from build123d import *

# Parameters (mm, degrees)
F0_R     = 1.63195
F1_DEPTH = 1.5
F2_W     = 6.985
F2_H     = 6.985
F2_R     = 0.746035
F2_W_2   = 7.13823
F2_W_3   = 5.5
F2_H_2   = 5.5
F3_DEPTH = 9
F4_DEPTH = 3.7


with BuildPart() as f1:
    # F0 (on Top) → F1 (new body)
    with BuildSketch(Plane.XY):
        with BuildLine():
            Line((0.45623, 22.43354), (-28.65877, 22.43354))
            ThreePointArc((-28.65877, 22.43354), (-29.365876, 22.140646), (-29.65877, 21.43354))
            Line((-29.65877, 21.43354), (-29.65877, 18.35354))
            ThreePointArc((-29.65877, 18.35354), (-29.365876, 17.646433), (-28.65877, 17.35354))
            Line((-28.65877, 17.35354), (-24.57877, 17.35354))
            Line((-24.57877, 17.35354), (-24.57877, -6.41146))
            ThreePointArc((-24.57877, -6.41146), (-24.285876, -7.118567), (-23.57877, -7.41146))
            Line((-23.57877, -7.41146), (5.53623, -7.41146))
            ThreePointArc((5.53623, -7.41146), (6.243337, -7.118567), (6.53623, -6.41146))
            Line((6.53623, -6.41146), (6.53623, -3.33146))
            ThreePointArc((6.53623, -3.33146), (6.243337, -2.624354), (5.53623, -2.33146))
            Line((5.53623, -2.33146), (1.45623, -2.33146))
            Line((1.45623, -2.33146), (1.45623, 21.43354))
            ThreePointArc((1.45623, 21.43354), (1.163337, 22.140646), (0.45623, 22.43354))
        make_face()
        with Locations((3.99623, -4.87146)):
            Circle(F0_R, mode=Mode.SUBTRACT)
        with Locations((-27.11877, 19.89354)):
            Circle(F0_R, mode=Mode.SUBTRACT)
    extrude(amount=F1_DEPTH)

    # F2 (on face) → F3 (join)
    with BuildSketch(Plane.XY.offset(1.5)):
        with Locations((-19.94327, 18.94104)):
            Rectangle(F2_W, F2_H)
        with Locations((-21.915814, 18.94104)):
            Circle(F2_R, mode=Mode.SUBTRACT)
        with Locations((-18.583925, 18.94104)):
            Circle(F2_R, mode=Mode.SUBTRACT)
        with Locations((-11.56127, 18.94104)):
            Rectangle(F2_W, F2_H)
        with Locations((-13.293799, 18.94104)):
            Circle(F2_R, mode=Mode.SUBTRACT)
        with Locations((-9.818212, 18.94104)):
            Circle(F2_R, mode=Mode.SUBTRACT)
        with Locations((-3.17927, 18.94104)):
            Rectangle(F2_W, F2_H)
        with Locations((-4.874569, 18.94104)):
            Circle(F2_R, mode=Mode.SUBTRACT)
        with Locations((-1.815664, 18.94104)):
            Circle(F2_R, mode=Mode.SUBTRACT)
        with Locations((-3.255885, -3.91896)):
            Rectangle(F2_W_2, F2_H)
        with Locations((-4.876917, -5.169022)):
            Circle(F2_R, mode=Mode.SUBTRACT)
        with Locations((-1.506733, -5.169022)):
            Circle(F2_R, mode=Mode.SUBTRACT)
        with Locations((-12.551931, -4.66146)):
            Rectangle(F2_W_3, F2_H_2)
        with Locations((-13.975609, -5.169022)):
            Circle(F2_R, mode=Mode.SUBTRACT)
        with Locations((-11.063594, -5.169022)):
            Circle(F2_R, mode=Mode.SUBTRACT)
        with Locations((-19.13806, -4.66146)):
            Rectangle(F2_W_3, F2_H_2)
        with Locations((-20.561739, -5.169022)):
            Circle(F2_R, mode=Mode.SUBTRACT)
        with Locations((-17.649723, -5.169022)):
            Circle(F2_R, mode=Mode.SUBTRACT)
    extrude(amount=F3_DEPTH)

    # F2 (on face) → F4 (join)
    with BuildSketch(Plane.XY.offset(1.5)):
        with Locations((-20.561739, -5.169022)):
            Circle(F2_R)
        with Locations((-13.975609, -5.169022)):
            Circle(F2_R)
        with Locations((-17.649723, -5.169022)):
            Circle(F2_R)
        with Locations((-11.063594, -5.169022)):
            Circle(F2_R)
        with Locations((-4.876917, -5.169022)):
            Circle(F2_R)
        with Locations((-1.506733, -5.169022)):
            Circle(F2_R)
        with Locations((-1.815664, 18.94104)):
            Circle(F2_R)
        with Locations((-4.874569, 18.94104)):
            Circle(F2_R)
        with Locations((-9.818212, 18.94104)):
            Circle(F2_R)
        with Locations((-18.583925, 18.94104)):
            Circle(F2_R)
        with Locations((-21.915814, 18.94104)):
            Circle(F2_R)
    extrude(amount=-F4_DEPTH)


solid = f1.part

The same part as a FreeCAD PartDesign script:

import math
import FreeCAD as App
import Part
import Sketcher

V = App.Vector
Q = App.Units.Quantity


def add_polygon(sketch, points):
    """Adds a closed chain of lines whose ends are joined by coincident constraints."""
    first, n = sketch.GeometryCount, len(points)
    for a, b in zip(points, points[1:] + points[:1]):
        sketch.addGeometry(Part.LineSegment(App.Vector(*a, 0), App.Vector(*b, 0)), False)
    for i in range(n):
        sketch.addConstraint(Sketcher.Constraint("Coincident", first + i, 2, first + (i + 1) % n, 1))

doc = App.newDocument("Part")
body = doc.addObject("PartDesign::Body", "Body")

sketch1 = body.newObject("Sketcher::SketchObject", "Sketch")
sketch1.AttachmentSupport = (doc.getObject("XY_Plane"), [""])
sketch1.MapMode = "FlatFace"
sketch1.addGeometry([
    Part.LineSegment(V(0.5, 22.4, 0), V(-28.7, 22.4, 0)),
    Part.ArcOfCircle(Part.Circle(V(-28.7, 21.4, 0), V(0, 0, 1), 1), math.radians(90), math.radians(180)),
    Part.LineSegment(V(-29.7, 21.4, 0), V(-29.7, 18.4, 0)),
    Part.ArcOfCircle(Part.Circle(V(-28.7, 18.4, 0), V(0, 0, 1), 1), math.radians(-180), math.radians(-90)),
    Part.LineSegment(V(-28.7, 17.4, 0), V(-24.6, 17.4, 0)),
    Part.LineSegment(V(-24.6, 17.4, 0), V(-24.6, -6.4, 0)),
    Part.ArcOfCircle(Part.Circle(V(-23.6, -6.4, 0), V(0, 0, 1), 1), math.radians(-180), math.radians(-90)),
    Part.LineSegment(V(-23.6, -7.4, 0), V(5.5, -7.4, 0)),
    Part.ArcOfCircle(Part.Circle(V(5.5, -6.4, 0), V(0, 0, 1), 1), math.radians(-90), math.radians(0)),
    Part.LineSegment(V(6.5, -6.4, 0), V(6.5, -3.3, 0)),
    Part.ArcOfCircle(Part.Circle(V(5.5, -3.3, 0), V(0, 0, 1), 1), math.radians(0), math.radians(90)),
    Part.LineSegment(V(5.5, -2.3, 0), V(1.5, -2.3, 0)),
    Part.LineSegment(V(1.5, -2.3, 0), V(1.5, 21.4, 0)),
    Part.ArcOfCircle(Part.Circle(V(0.5, 21.4, 0), V(0, 0, 1), 1), math.radians(0), math.radians(90)),
    Part.Circle(V(4, -4.9, 0), V(0, 0, 1), 1.6),
    Part.Circle(V(-27.1, 19.9, 0), V(0, 0, 1), 1.6),
], False)
sketch1.addConstraint([
    Sketcher.Constraint("Coincident", 0, 2, 1, 1),
    Sketcher.Constraint("Coincident", 1, 2, 2, 1),
    Sketcher.Constraint("Tangent", 2, 2, 3, 1),
    Sketcher.Constraint("Tangent", 3, 2, 4, 1),
    Sketcher.Constraint("Coincident", 4, 2, 5, 1),
    Sketcher.Constraint("Tangent", 5, 2, 6, 1),
    Sketcher.Constraint("Tangent", 6, 2, 7, 1),
    Sketcher.Constraint("Tangent", 7, 2, 8, 1),
    Sketcher.Constraint("Tangent", 8, 2, 9, 1),
    Sketcher.Constraint("Tangent", 9, 2, 10, 1),
    Sketcher.Constraint("Tangent", 10, 2, 11, 1),
    Sketcher.Constraint("Coincident", 11, 2, 12, 1),
    Sketcher.Constraint("Tangent", 12, 2, 13, 1),
    Sketcher.Constraint("Tangent", 13, 2, 0, 1),
    Sketcher.Constraint("Horizontal", 0),
    Sketcher.Constraint("Vertical", 2),
    Sketcher.Constraint("Horizontal", 4),
    Sketcher.Constraint("Vertical", 5),
    Sketcher.Constraint("Horizontal", 7),
    Sketcher.Constraint("Vertical", 9),
    Sketcher.Constraint("Horizontal", 11),
    Sketcher.Constraint("Vertical", 12),
    Sketcher.Constraint("Equal", 1, 3),
    Sketcher.Constraint("Equal", 3, 6),
    Sketcher.Constraint("Equal", 6, 8),
    Sketcher.Constraint("Equal", 8, 10),
    Sketcher.Constraint("Equal", 10, 13),
    Sketcher.Constraint("Equal", 14, 15),
    Sketcher.Constraint("Horizontal", 13, 3, 1, 2),
    Sketcher.Constraint("Vertical", 3, 3, 0, 2),
    Sketcher.Constraint("Equal", 0, 7),
    Sketcher.Constraint("Equal", 2, 9),
    Sketcher.Constraint("Radius", 3, Q("1.000001 mm")),
    Sketcher.Constraint("Diameter", 14, Q("3.2639 mm")),
    Sketcher.Constraint("DistanceX", 4, 1, 4, 2, Q("4.08 mm")),
    Sketcher.Constraint("DistanceY", 2, 2, 2, 1, Q("3.08 mm")),
    Sketcher.Constraint("DistanceX", 0, 2, 0, 1, Q("29.115 mm")),
    Sketcher.Constraint("DistanceY", 5, 2, 5, 1, Q("23.765 mm")),
    Sketcher.Constraint("DistanceX", 14, 3, 10, 3, Q("1.539999 mm")),
    Sketcher.Constraint("DistanceY", 14, 3, 10, 3, Q("1.539999 mm")),
    Sketcher.Constraint("DistanceX", 3, 3, 15, 3, Q("1.539999 mm")),
    Sketcher.Constraint("DistanceY", 3, 3, 15, 3, Q("1.539999 mm")),
    Sketcher.Constraint("DistanceX", 3, 3, -1, 1, Q("28.658769 mm")),
    Sketcher.Constraint("DistanceY", -1, 1, 3, 3, Q("18.353541 mm")),
])
pad1 = body.newObject("PartDesign::Pad", "Pad")
pad1.Profile = sketch1
pad1.Length = 1.5

sketch2 = body.newObject("Sketcher::SketchObject", "Sketch001")
sketch2.AttachmentSupport = (doc.getObject("XY_Plane"), [""])
sketch2.MapMode = "FlatFace"
sketch2.AttachmentOffset = App.Placement(V(0, 0, 1.5), App.Rotation())
add_polygon(sketch2, [(-23.4, 22.4), (-23.4, 15.4), (-16.5, 15.4), (-16.5, 22.4)])
sketch2.addGeometry(Part.Circle(V(-21.9, 18.9, 0), V(0, 0, 1), 0.7), False)
sketch2.addGeometry(Part.Circle(V(-18.6, 18.9, 0), V(0, 0, 1), 0.7), False)
add_polygon(sketch2, [(-15.1, 22.4), (-15.1, 15.4), (-8.1, 15.4), (-8.1, 22.4)])
sketch2.addGeometry(Part.Circle(V(-13.3, 18.9, 0), V(0, 0, 1), 0.7), False)
sketch2.addGeometry(Part.Circle(V(-9.8, 18.9, 0), V(0, 0, 1), 0.7), False)
add_polygon(sketch2, [(-6.7, 22.4), (-6.7, 15.4), (0.3, 15.4), (0.3, 22.4)])
sketch2.addGeometry(Part.Circle(V(-4.9, 18.9, 0), V(0, 0, 1), 0.7), False)
sketch2.addGeometry(Part.Circle(V(-1.8, 18.9, 0), V(0, 0, 1), 0.7), False)
add_polygon(sketch2, [(-6.8, -0.4), (-6.8, -7.4), (0.3, -7.4), (0.3, -0.4)])
sketch2.addGeometry(Part.Circle(V(-4.9, -5.2, 0), V(0, 0, 1), 0.7), False)
sketch2.addGeometry(Part.Circle(V(-1.5, -5.2, 0), V(0, 0, 1), 0.7), False)
add_polygon(sketch2, [(-15.3, -1.9), (-15.3, -7.4), (-9.8, -7.4), (-9.8, -1.9)])
sketch2.addGeometry(Part.Circle(V(-14, -5.2, 0), V(0, 0, 1), 0.7), False)
sketch2.addGeometry(Part.Circle(V(-11.1, -5.2, 0), V(0, 0, 1), 0.7), False)
add_polygon(sketch2, [(-21.9, -1.9), (-21.9, -7.4), (-16.4, -7.4), (-16.4, -1.9)])
sketch2.addGeometry(Part.Circle(V(-20.6, -5.2, 0), V(0, 0, 1), 0.7), False)
sketch2.addGeometry(Part.Circle(V(-17.6, -5.2, 0), V(0, 0, 1), 0.7), False)
sketch2.addConstraint([
    Sketcher.Constraint("Vertical", 0),
    Sketcher.Constraint("Horizontal", 1),
    Sketcher.Constraint("Vertical", 2),
    Sketcher.Constraint("Horizontal", 3),
    Sketcher.Constraint("Vertical", 6),
    Sketcher.Constraint("Horizontal", 7),
    Sketcher.Constraint("Vertical", 8),
    Sketcher.Constraint("Horizontal", 9),
    Sketcher.Constraint("Vertical", 12),
    Sketcher.Constraint("Horizontal", 13),
    Sketcher.Constraint("Vertical", 14),
    Sketcher.Constraint("Horizontal", 15),
    Sketcher.Constraint("Vertical", 18),
    Sketcher.Constraint("Horizontal", 19),
    Sketcher.Constraint("Vertical", 20),
    Sketcher.Constraint("Horizontal", 21),
    Sketcher.Constraint("Vertical", 24),
    Sketcher.Constraint("Horizontal", 25),
    Sketcher.Constraint("Vertical", 26),
    Sketcher.Constraint("Horizontal", 27),
    Sketcher.Constraint("Vertical", 30),
    Sketcher.Constraint("Horizontal", 31),
    Sketcher.Constraint("Vertical", 32),
    Sketcher.Constraint("Horizontal", 33),
    Sketcher.Constraint("Equal", 4, 5),
    Sketcher.Constraint("Equal", 5, 10),
    Sketcher.Constraint("Equal", 10, 11),
    Sketcher.Constraint("Equal", 11, 16),
    Sketcher.Constraint("Equal", 16, 17),
    Sketcher.Constraint("Equal", 17, 22),
    Sketcher.Constraint("Equal", 22, 23),
    Sketcher.Constraint("Equal", 23, 28),
    Sketcher.Constraint("Equal", 28, 29),
    Sketcher.Constraint("Equal", 29, 34),
    Sketcher.Constraint("Equal", 34, 35),
    Sketcher.Constraint("Horizontal", 4, 3, 5, 3),
    Sketcher.Constraint("Horizontal", 5, 3, 10, 3),
    Sketcher.Constraint("Horizontal", 10, 3, 11, 3),
    Sketcher.Constraint("Horizontal", 11, 3, 16, 3),
    Sketcher.Constraint("Horizontal", 16, 3, 17, 3),
    Sketcher.Constraint("Horizontal", 22, 3, 23, 3),
    Sketcher.Constraint("Horizontal", 23, 3, 28, 3),
    Sketcher.Constraint("Horizontal", 28, 3, 29, 3),
    Sketcher.Constraint("Horizontal", 29, 3, 34, 3),
    Sketcher.Constraint("Horizontal", 34, 3, 35, 3),
    Sketcher.Constraint("Horizontal", 1, 2, 6, 2),
    Sketcher.Constraint("Horizontal", 3, 2, 8, 2),
    Sketcher.Constraint("Horizontal", 7, 2, 12, 2),
    Sketcher.Constraint("Horizontal", 9, 2, 14, 2),
    Sketcher.Constraint("Horizontal", 19, 2, 24, 2),
    Sketcher.Constraint("Horizontal", 25, 2, 30, 2),
    Sketcher.Constraint("Horizontal", 27, 2, 32, 2),
    Sketcher.Constraint("Vertical", 14, 2, 19, 2),
    Sketcher.Constraint("Equal", 3, 7),
    Sketcher.Constraint("Equal", 9, 13),
    Sketcher.Constraint("Equal", 27, 31),
    Sketcher.Constraint("Equal", 15, 0),
    Sketcher.Constraint("Equal", 14, 18),
    Sketcher.Constraint("Equal", 33, 24),
    Sketcher.Constraint("DistanceX", 25, 1, 25, 2, Q("5.5 mm")),
    Sketcher.Constraint("Diameter", 4, Q("1.49207 mm")),
    Sketcher.Constraint("DistanceX", 1, 1, 1, 2, Q("6.985 mm")),
    Sketcher.Constraint("DistanceX", 18, 2, -1, 1, Q("6.825 mm")),
    Sketcher.Constraint("DistanceX", 1, 2, 6, 2, Q("1.397 mm")),
    Sketcher.Constraint("DistanceX", 7, 2, 12, 2, Q("1.397 mm")),
    Sketcher.Constraint("DistanceX", 19, 1, 19, 2, Q("7.13823 mm")),
    Sketcher.Constraint("DistanceX", 10, 3, -1, 1, Q("13.293799 mm")),
    Sketcher.Constraint("DistanceY", 0, 2, 4, 3, Q("3.4925 mm")),
    Sketcher.Constraint("DistanceX", 0, 2, 16, 3, Q("18.561201 mm")),
    Sketcher.Constraint("DistanceY", -1, 1, 4, 3, Q("18.94104 mm")),
    Sketcher.Constraint("DistanceX", 28, 3, -1, 1, Q("13.975609 mm")),
    Sketcher.Constraint("DistanceX", 34, 3, -1, 1, Q("20.561739 mm")),
    Sketcher.Constraint("DistanceY", 18, 2, -1, 1, Q("7.41146 mm")),
    Sketcher.Constraint("DistanceX", 24, 2, -1, 1, Q("15.301931 mm")),
    Sketcher.Constraint("DistanceX", 30, 2, -1, 1, Q("21.88806 mm")),
    Sketcher.Constraint("DistanceX", 4, 3, 5, 3, Q("3.331889 mm")),
    Sketcher.Constraint("DistanceX", 11, 3, 17, 3, Q("8.002548 mm")),
    Sketcher.Constraint("DistanceX", 5, 3, 17, 3, Q("16.768261 mm")),
    Sketcher.Constraint("DistanceY", 22, 3, 16, 3, Q("24.110062 mm")),
    Sketcher.Constraint("DistanceX", 5, 3, 22, 3, Q("13.707008 mm")),
    Sketcher.Constraint("DistanceX", 17, 3, 23, 3, Q("0.308931 mm")),
    Sketcher.Constraint("DistanceX", 29, 3, 23, 3, Q("9.556861 mm")),
    Sketcher.Constraint("DistanceX", 35, 3, 29, 3, Q("6.586129 mm")),
    Sketcher.Constraint("DistanceX", 0, 2, 11, 3, Q("13.617558 mm")),
])
pad2 = body.newObject("PartDesign::Pad", "Pad001")
pad2.Profile = sketch2
pad2.Length = 9

sketch3 = body.newObject("Sketcher::SketchObject", "Sketch002")
sketch3.AttachmentSupport = (doc.getObject("XY_Plane"), [""])
sketch3.MapMode = "FlatFace"
sketch3.AttachmentOffset = App.Placement(V(0, 0, 1.5), App.Rotation())
sketch3.addGeometry([
    Part.Circle(V(-20.6, -5.2, 0), V(0, 0, 1), 0.7),
    Part.Circle(V(-14, -5.2, 0), V(0, 0, 1), 0.7),
    Part.Circle(V(-17.6, -5.2, 0), V(0, 0, 1), 0.7),
    Part.Circle(V(-11.1, -5.2, 0), V(0, 0, 1), 0.7),
    Part.Circle(V(-4.9, -5.2, 0), V(0, 0, 1), 0.7),
    Part.Circle(V(-1.5, -5.2, 0), V(0, 0, 1), 0.7),
    Part.Circle(V(-1.8, 18.9, 0), V(0, 0, 1), 0.7),
    Part.Circle(V(-4.9, 18.9, 0), V(0, 0, 1), 0.7),
    Part.Circle(V(-9.8, 18.9, 0), V(0, 0, 1), 0.7),
    Part.Circle(V(-18.6, 18.9, 0), V(0, 0, 1), 0.7),
    Part.Circle(V(-21.9, 18.9, 0), V(0, 0, 1), 0.7),
], False)
sketch3.addConstraint([
    Sketcher.Constraint("Equal", 0, 1),
    Sketcher.Constraint("Equal", 1, 2),
    Sketcher.Constraint("Equal", 2, 3),
    Sketcher.Constraint("Equal", 3, 4),
    Sketcher.Constraint("Equal", 4, 5),
    Sketcher.Constraint("Equal", 5, 6),
    Sketcher.Constraint("Equal", 6, 7),
    Sketcher.Constraint("Equal", 7, 8),
    Sketcher.Constraint("Equal", 8, 9),
    Sketcher.Constraint("Equal", 9, 10),
    Sketcher.Constraint("Horizontal", 0, 3, 1, 3),
    Sketcher.Constraint("Horizontal", 1, 3, 2, 3),
    Sketcher.Constraint("Horizontal", 2, 3, 3, 3),
    Sketcher.Constraint("Horizontal", 3, 3, 4, 3),
    Sketcher.Constraint("Horizontal", 4, 3, 5, 3),
    Sketcher.Constraint("Horizontal", 6, 3, 7, 3),
    Sketcher.Constraint("Horizontal", 7, 3, 8, 3),
    Sketcher.Constraint("Horizontal", 8, 3, 9, 3),
    Sketcher.Constraint("Horizontal", 9, 3, 10, 3),
    Sketcher.Constraint("Diameter", 0, Q("1.49207 mm")),
    Sketcher.Constraint("DistanceX", 9, 3, 2, 3, Q("0.934202 mm")),
    Sketcher.Constraint("DistanceX", 0, 3, -1, 1, Q("20.561739 mm")),
    Sketcher.Constraint("DistanceX", 1, 3, -1, 1, Q("13.975609 mm")),
    Sketcher.Constraint("DistanceY", -1, 1, 6, 3, Q("18.94104 mm")),
    Sketcher.Constraint("DistanceX", 7, 3, -1, 1, Q("4.874569 mm")),
    Sketcher.Constraint("DistanceX", 2, 3, 3, 3, Q("6.586129 mm")),
    Sketcher.Constraint("DistanceX", 3, 3, 5, 3, Q("9.556861 mm")),
    Sketcher.Constraint("DistanceX", 6, 3, 5, 3, Q("0.308931 mm")),
    Sketcher.Constraint("DistanceY", 5, 3, 6, 3, Q("24.110062 mm")),
    Sketcher.Constraint("DistanceX", 8, 3, 6, 3, Q("8.002548 mm")),
    Sketcher.Constraint("DistanceX", 10, 3, 9, 3, Q("3.331889 mm")),
    Sketcher.Constraint("DistanceX", 2, 3, -1, 1, Q("17.649723 mm")),
    Sketcher.Constraint("DistanceX", 4, 3, -1, 1, Q("4.876917 mm")),
])
pad3 = body.newObject("PartDesign::Pad", "Pad002")
pad3.Profile = sketch3
pad3.Length = 3.7
pad3.Reversed = True

doc.recompute()
